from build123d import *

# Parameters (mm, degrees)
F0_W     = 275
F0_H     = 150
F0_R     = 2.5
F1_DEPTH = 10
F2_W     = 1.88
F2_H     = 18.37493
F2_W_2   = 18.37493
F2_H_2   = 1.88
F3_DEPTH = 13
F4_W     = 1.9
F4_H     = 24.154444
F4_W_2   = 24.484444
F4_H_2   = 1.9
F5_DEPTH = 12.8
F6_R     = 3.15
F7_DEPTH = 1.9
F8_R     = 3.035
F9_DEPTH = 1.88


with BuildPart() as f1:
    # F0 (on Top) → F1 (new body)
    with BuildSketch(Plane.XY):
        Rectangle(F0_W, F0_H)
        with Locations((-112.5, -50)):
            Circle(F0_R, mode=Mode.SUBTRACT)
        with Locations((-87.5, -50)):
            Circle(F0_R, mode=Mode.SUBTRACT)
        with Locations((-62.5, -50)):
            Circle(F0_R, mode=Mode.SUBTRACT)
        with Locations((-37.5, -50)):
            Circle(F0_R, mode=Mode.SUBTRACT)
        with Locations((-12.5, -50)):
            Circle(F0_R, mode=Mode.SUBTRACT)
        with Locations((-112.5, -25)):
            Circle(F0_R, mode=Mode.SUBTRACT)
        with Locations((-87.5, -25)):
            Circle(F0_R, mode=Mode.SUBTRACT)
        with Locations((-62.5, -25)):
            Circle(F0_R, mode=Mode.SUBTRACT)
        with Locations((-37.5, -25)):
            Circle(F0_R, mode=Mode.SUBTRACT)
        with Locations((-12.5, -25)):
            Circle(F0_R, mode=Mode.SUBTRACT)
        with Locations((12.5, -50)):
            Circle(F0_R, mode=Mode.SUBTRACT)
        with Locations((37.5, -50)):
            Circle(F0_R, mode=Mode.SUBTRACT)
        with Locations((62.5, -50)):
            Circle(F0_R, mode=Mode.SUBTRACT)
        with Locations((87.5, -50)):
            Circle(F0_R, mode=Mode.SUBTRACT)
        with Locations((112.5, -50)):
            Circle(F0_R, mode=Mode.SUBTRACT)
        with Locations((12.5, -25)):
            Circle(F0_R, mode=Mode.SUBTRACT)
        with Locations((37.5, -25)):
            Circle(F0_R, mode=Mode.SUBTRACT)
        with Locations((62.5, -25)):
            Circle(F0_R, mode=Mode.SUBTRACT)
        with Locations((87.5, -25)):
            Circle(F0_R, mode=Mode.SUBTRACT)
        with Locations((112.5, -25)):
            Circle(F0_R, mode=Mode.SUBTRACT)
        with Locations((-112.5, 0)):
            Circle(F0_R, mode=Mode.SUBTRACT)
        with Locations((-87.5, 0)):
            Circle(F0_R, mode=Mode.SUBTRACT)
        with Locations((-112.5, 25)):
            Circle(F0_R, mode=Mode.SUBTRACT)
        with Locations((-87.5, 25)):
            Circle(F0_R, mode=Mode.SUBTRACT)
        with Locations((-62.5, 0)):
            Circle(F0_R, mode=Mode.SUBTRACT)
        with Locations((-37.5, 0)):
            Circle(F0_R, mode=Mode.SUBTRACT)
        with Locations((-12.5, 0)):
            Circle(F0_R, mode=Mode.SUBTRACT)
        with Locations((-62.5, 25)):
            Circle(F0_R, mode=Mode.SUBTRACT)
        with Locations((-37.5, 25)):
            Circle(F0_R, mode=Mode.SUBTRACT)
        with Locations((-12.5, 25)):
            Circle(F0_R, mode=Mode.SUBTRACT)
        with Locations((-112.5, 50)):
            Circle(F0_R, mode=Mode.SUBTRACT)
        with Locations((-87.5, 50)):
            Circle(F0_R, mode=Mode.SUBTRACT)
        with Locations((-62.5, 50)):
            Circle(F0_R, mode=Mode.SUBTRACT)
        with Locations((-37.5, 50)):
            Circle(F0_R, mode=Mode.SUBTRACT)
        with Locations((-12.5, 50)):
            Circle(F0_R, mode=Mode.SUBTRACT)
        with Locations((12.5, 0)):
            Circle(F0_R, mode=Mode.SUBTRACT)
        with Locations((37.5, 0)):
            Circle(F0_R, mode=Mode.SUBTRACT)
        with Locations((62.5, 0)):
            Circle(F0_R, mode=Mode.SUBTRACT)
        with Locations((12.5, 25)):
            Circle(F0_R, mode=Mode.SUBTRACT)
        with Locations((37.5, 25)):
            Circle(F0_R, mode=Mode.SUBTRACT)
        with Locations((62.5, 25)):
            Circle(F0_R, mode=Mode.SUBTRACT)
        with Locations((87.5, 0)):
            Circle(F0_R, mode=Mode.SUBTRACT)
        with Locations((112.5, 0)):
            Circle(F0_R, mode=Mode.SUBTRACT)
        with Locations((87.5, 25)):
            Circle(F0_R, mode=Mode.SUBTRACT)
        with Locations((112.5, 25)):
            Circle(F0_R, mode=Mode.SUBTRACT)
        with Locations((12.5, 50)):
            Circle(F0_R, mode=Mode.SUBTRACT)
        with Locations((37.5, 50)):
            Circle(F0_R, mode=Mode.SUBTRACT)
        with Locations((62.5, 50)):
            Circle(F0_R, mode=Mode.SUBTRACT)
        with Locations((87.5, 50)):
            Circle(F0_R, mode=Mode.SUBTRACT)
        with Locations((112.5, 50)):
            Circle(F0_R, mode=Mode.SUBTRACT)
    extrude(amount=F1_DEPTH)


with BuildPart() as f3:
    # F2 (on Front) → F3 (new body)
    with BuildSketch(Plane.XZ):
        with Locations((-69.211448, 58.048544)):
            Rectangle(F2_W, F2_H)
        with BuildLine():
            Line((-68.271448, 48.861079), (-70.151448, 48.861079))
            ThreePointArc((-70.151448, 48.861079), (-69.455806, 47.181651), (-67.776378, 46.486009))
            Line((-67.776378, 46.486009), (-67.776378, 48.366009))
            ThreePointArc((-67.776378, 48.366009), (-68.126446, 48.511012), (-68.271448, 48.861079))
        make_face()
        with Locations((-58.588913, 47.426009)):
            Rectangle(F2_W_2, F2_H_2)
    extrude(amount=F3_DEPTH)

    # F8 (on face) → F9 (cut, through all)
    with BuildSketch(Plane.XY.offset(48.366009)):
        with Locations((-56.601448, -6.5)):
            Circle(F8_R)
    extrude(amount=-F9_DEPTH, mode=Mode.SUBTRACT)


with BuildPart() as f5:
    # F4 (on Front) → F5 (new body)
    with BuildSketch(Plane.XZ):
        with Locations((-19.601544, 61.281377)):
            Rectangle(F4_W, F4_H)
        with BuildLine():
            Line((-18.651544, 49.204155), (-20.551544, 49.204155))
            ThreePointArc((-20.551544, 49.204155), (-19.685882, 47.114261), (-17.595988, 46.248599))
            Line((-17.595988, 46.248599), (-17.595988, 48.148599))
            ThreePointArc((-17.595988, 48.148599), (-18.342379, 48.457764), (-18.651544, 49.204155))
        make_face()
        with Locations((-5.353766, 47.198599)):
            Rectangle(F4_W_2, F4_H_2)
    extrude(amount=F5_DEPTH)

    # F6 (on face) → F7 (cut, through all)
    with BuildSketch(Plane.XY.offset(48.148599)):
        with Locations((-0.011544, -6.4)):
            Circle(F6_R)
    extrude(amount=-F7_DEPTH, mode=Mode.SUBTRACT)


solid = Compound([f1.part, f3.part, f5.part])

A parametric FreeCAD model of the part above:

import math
import FreeCAD as App
import Part
import Sketcher
from FreeCAD import Vector

doc = App.newDocument("Part")
params = doc.addObject("Spreadsheet::Sheet", "Params")
for row, (alias, value) in enumerate([
    ("sketch1_diameter", "5 mm"),
    ("sketch1_width", "275 mm"),
    ("sketch1_height", "150 mm"),
    ("pad1_length", "10 mm"),
    ("sketch2_width", "1.88 mm"),
    ("pad2_length", "13 mm"),
    ("sketch3_diameter", "6.07 mm"),
    ("sketch4_width", "1.9 mm"),
    ("pad3_length", "12.8 mm"),
    ("sketch5_diameter", "6.3 mm"),
], start=1):
    params.set(f"A{row}", alias)
    params.set(f"B{row}", "=" + value)
    params.setAlias(f"B{row}", alias)

body = doc.addObject("PartDesign::Body", "Body")

sketch1 = doc.addObject("Sketcher::SketchObject", "Sketch")
body.addObject(sketch1)
sketch1.AttachmentSupport = (doc.XY_Plane, [""])
sketch1.MapMode = "FlatFace"
sketch1.addGeometry([
    Part.LineSegment(Vector(-137.5, 75, 0), Vector(-137.5, -75, 0)),
    Part.LineSegment(Vector(-137.5, -75, 0), Vector(137.5, -75, 0)),
    Part.LineSegment(Vector(137.5, -75, 0), Vector(137.5, 75, 0)),
    Part.LineSegment(Vector(137.5, 75, 0), Vector(-137.5, 75, 0)),
    Part.Circle(Vector(-112.5, -50, 0), Vector(0, 0, 1), 2.5),
    Part.Circle(Vector(-87.5, -50, 0), Vector(0, 0, 1), 2.5),
    Part.Circle(Vector(-62.5, -50, 0), Vector(0, 0, 1), 2.5),
    Part.Circle(Vector(-37.5, -50, 0), Vector(0, 0, 1), 2.5),
    Part.Circle(Vector(-12.5, -50, 0), Vector(0, 0, 1), 2.5),
    Part.Circle(Vector(-112.5, -25, 0), Vector(0, 0, 1), 2.5),
    Part.Circle(Vector(-87.5, -25, 0), Vector(0, 0, 1), 2.5),
    Part.Circle(Vector(-62.5, -25, 0), Vector(0, 0, 1), 2.5),
    Part.Circle(Vector(-37.5, -25, 0), Vector(0, 0, 1), 2.5),
    Part.Circle(Vector(-12.5, -25, 0), Vector(0, 0, 1), 2.5),
    Part.Circle(Vector(12.5, -50, 0), Vector(0, 0, 1), 2.5),
    Part.Circle(Vector(37.5, -50, 0), Vector(0, 0, 1), 2.5),
    Part.Circle(Vector(62.5, -50, 0), Vector(0, 0, 1), 2.5),
    Part.Circle(Vector(87.5, -50, 0), Vector(0, 0, 1), 2.5),
    Part.Circle(Vector(112.5, -50, 0), Vector(0, 0, 1), 2.5),
    Part.Circle(Vector(12.5, -25, 0), Vector(0, 0, 1), 2.5),
    Part.Circle(Vector(37.5, -25, 0), Vector(0, 0, 1), 2.5),
    Part.Circle(Vector(62.5, -25, 0), Vector(0, 0, 1), 2.5),
    Part.Circle(Vector(87.5, -25, 0), Vector(0, 0, 1), 2.5),
    Part.Circle(Vector(112.5, -25, 0), Vector(0, 0, 1), 2.5),
    Part.Circle(Vector(-112.5, 0, 0), Vector(0, 0, 1), 2.5),
    Part.Circle(Vector(-87.5, 0, 0), Vector(0, 0, 1), 2.5),
    Part.Circle(Vector(-62.5, 0, 0), Vector(0, 0, 1), 2.5),
    Part.Circle(Vector(-112.5, 25, 0), Vector(0, 0, 1), 2.5),
    Part.Circle(Vector(-87.5, 25, 0), Vector(0, 0, 1), 2.5),
    Part.Circle(Vector(-62.5, 25, 0), Vector(0, 0, 1), 2.5),
    Part.Circle(Vector(-37.5, 0, 0), Vector(0, 0, 1), 2.5),
    Part.Circle(Vector(-12.5, 0, 0), Vector(0, 0, 1), 2.5),
    Part.Circle(Vector(-37.5, 25, 0), Vector(0, 0, 1), 2.5),
    Part.Circle(Vector(-12.5, 25, 0), Vector(0, 0, 1), 2.5),
    Part.Circle(Vector(-112.5, 50, 0), Vector(0, 0, 1), 2.5),
    Part.Circle(Vector(-87.5, 50, 0), Vector(0, 0, 1), 2.5),
    Part.Circle(Vector(-62.5, 50, 0), Vector(0, 0, 1), 2.5),
    Part.Circle(Vector(-37.5, 50, 0), Vector(0, 0, 1), 2.5),
    Part.Circle(Vector(-12.5, 50, 0), Vector(0, 0, 1), 2.5),
    Part.Circle(Vector(12.5, 0, 0), Vector(0, 0, 1), 2.5),
    Part.Circle(Vector(37.5, 0, 0), Vector(0, 0, 1), 2.5),
    Part.Circle(Vector(12.5, 25, 0), Vector(0, 0, 1), 2.5),
    Part.Circle(Vector(37.5, 25, 0), Vector(0, 0, 1), 2.5),
    Part.Circle(Vector(62.5, 0, 0), Vector(0, 0, 1), 2.5),
    Part.Circle(Vector(87.5, 0, 0), Vector(0, 0, 1), 2.5),
    Part.Circle(Vector(112.5, 0, 0), Vector(0, 0, 1), 2.5),
    Part.Circle(Vector(62.5, 25, 0), Vector(0, 0, 1), 2.5),
    Part.Circle(Vector(87.5, 25, 0), Vector(0, 0, 1), 2.5),
    Part.Circle(Vector(112.5, 25, 0), Vector(0, 0, 1), 2.5),
    Part.Circle(Vector(12.5, 50, 0), Vector(0, 0, 1), 2.5),
    Part.Circle(Vector(37.5, 50, 0), Vector(0, 0, 1), 2.5),
    Part.Circle(Vector(62.5, 50, 0), Vector(0, 0, 1), 2.5),
    Part.Circle(Vector(87.5, 50, 0), Vector(0, 0, 1), 2.5),
    Part.Circle(Vector(112.5, 50, 0), Vector(0, 0, 1), 2.5),
], False)
sketch1.addConstraint([
    Sketcher.Constraint("Coincident", 0, 2, 1, 1),
    Sketcher.Constraint("Coincident", 1, 2, 2, 1),
    Sketcher.Constraint("Coincident", 2, 2, 3, 1),
    Sketcher.Constraint("Coincident", 3, 2, 0, 1),
    Sketcher.Constraint("Vertical", 0),
    Sketcher.Constraint("Horizontal", 1),
    Sketcher.Constraint("Vertical", 2),
    Sketcher.Constraint("Horizontal", 3),
    Sketcher.Constraint("Equal", 4, 5),
    Sketcher.Constraint("Equal", 5, 6),
    Sketcher.Constraint("Equal", 6, 7),
    Sketcher.Constraint("Equal", 7, 8),
    Sketcher.Constraint("Equal", 8, 9),
    Sketcher.Constraint("Equal", 9, 10),
    Sketcher.Constraint("Equal", 10, 11),
    Sketcher.Constraint("Equal", 11, 12),
    Sketcher.Constraint("Equal", 12, 13),
    Sketcher.Constraint("Equal", 13, 14),
    Sketcher.Constraint("Equal", 14, 15),
    Sketcher.Constraint("Equal", 15, 16),
    Sketcher.Constraint("Equal", 16, 17),
    Sketcher.Constraint("Equal", 17, 18),
    Sketcher.Constraint("Equal", 18, 19),
    Sketcher.Constraint("Equal", 19, 20),
    Sketcher.Constraint("Equal", 20, 21),
    Sketcher.Constraint("Equal", 21, 22),
    Sketcher.Constraint("Equal", 22, 23),
    Sketcher.Constraint("Equal", 23, 24),
    Sketcher.Constraint("Equal", 24, 25),
    Sketcher.Constraint("Equal", 25, 26),
    Sketcher.Constraint("Equal", 26, 27),
    Sketcher.Constraint("Equal", 27, 28),
    Sketcher.Constraint("Equal", 28, 29),
    Sketcher.Constraint("Equal", 29, 30),
    Sketcher.Constraint("Equal", 30, 31),
    Sketcher.Constraint("Equal", 31, 32),
    Sketcher.Constraint("Equal", 32, 33),
    Sketcher.Constraint("Equal", 33, 34),
    Sketcher.Constraint("Equal", 34, 35),
    Sketcher.Constraint("Equal", 35, 36),
    Sketcher.Constraint("Equal", 36, 37),
    Sketcher.Constraint("Equal", 37, 38),
    Sketcher.Constraint("Equal", 38, 39),
    Sketcher.Constraint("Equal", 39, 40),
    Sketcher.Constraint("Equal", 40, 41),
    Sketcher.Constraint("Equal", 41, 42),
    Sketcher.Constraint("Equal", 42, 43),
    Sketcher.Constraint("Equal", 43, 44),
    Sketcher.Constraint("Equal", 44, 45),
    Sketcher.Constraint("Equal", 45, 46),
    Sketcher.Constraint("Equal", 46, 47),
    Sketcher.Constraint("Equal", 47, 48),
    Sketcher.Constraint("Equal", 48, 49),
    Sketcher.Constraint("Equal", 49, 50),
    Sketcher.Constraint("Equal", 50, 51),
    Sketcher.Constraint("Equal", 51, 52),
    Sketcher.Constraint("Equal", 52, 53),
    Sketcher.Constraint("Symmetric", 23, 3, 27, 3, -1, 1),
    Sketcher.Constraint("Symmetric", 22, 3, 28, 3, -1, 1),
    Sketcher.Constraint("Symmetric", 21, 3, 29, 3, -1, 1),
    Sketcher.Constraint("Symmetric", 20, 3, 32, 3, -1, 1),
    Sketcher.Constraint("Symmetric", 19, 3, 33, 3, -1, 1),
    Sketcher.Constraint("Symmetric", 18, 3, 34, 3, -1, 1),
    Sketcher.Constraint("Symmetric", 17, 3, 35, 3, -1, 1),
    Sketcher.Constraint("Symmetric", 16, 3, 36, 3, -1, 1),
    Sketcher.Constraint("Symmetric", 15, 3, 37, 3, -1, 1),
    Sketcher.Constraint("Symmetric", 14, 3, 38, 3, -1, 1),
    Sketcher.Constraint("Symmetric", 31, 3, 39, 3, -1, 1),
    Sketcher.Constraint("Symmetric", 30, 3, 40, 3, -1, 1),
    Sketcher.Constraint("Symmetric", 13, 3, 41, 3, -1, 1),
    Sketcher.Constraint("Symmetric", 12, 3, 42, 3, -1, 1),
    Sketcher.Constraint("Symmetric", 26, 3, 43, 3, -1, 1),
    Sketcher.Constraint("Symmetric", 25, 3, 44, 3, -1, 1),
    Sketcher.Constraint("Symmetric", 24, 3, 45, 3, -1, 1),
    Sketcher.Constraint("Symmetric", 11, 3, 46, 3, -1, 1),
    Sketcher.Constraint("Symmetric", 10, 3, 47, 3, -1, 1),
    Sketcher.Constraint("Symmetric", 9, 3, 48, 3, -1, 1),
    Sketcher.Constraint("Symmetric", 8, 3, 49, 3, -1, 1),
    Sketcher.Constraint("Symmetric", 7, 3, 50, 3, -1, 1),
    Sketcher.Constraint("Symmetric", 6, 3, 51, 3, -1, 1),
    Sketcher.Constraint("Symmetric", 5, 3, 52, 3, -1, 1),
    Sketcher.Constraint("Symmetric", 4, 3, 53, 3, -1, 1),
    Sketcher.Constraint("Symmetric", 0, 2, 2, 2, -1, 1),
    Sketcher.Constraint("Symmetric", 8, 3, 14, 3, -2),
    Sketcher.Constraint("Symmetric", 7, 3, 15, 3, -2),
    Sketcher.Constraint("Symmetric", 6, 3, 16, 3, -2),
    Sketcher.Constraint("Symmetric", 5, 3, 17, 3, -2),
    Sketcher.Constraint("Symmetric", 4, 3, 18, 3, -2),
    Sketcher.Constraint("Symmetric", 13, 3, 19, 3, -2),
    Sketcher.Constraint("Symmetric", 12, 3, 20, 3, -2),
    Sketcher.Constraint("Symmetric", 11, 3, 21, 3, -2),
    Sketcher.Constraint("Symmetric", 10, 3, 22, 3, -2),
    Sketcher.Constraint("Symmetric", 9, 3, 23, 3, -2),
    Sketcher.Constraint("PointOnObject", 24, 3, -1),
    Sketcher.Constraint("PointOnObject", 25, 3, -1),
    Sketcher.Constraint("PointOnObject", 26, 3, -1),
    Sketcher.Constraint("PointOnObject", 30, 3, -1),
    Sketcher.Constraint("PointOnObject", 31, 3, -1),
    Sketcher.Constraint("Horizontal", 4, 3, 5, 3),
    Sketcher.Constraint("Horizontal", 5, 3, 6, 3),
    Sketcher.Constraint("Horizontal", 6, 3, 7, 3),
    Sketcher.Constraint("Horizontal", 7, 3, 8, 3),
    Sketcher.Constraint("Horizontal", 9, 3, 10, 3),
    Sketcher.Constraint("Horizontal", 10, 3, 11, 3),
    Sketcher.Constraint("Horizontal", 11, 3, 12, 3),
    Sketcher.Constraint("Horizontal", 12, 3, 13, 3),
    Sketcher.Constraint("Vertical", 4, 3, 9, 3),
    Sketcher.Constraint("Vertical", 5, 3, 10, 3),
    Sketcher.Constraint("Vertical", 6, 3, 11, 3),
    Sketcher.Constraint("Vertical", 7, 3, 12, 3),
    Sketcher.Constraint("Vertical", 8, 3, 13, 3),
    Sketcher.Constraint("Vertical", 9, 3, 24, 3),
    Sketcher.Constraint("Vertical", 10, 3, 25, 3),
    Sketcher.Constraint("Vertical", 11, 3, 26, 3),
    Sketcher.Constraint("Vertical", 12, 3, 30, 3),
    Sketcher.Constraint("Vertical", 13, 3, 31, 3),
    Sketcher.Constraint("Diameter", 4, 5.0),
    Sketcher.Constraint("DistanceX", 1, 1, 1, 2, 275.0),
    Sketcher.Constraint("DistanceY", 0, 2, 0, 1, 150.0),
    Sketcher.Constraint("DistanceY", 4, 3, -1, 1, 50.0),
    Sketcher.Constraint("DistanceY", 9, 3, -1, 1, 25.0),
    Sketcher.Constraint("DistanceX", 4, 3, 5, 3, 25.0),
    Sketcher.Constraint("DistanceX", 5, 3, 6, 3, 25.0),
    Sketcher.Constraint("DistanceX", 6, 3, 7, 3, 25.0),
    Sketcher.Constraint("DistanceX", 7, 3, 8, 3, 25.0),
    Sketcher.Constraint("DistanceX", 8, 3, 14, 3, 25.0),
])
sketch1.setExpression("Constraints[116]", "Params.sketch1_diameter")
sketch1.setExpression("Constraints[117]", "Params.sketch1_width")
sketch1.setExpression("Constraints[118]", "Params.sketch1_height")
pad1 = doc.addObject("PartDesign::Pad", "Pad")
body.addObject(pad1)
pad1.Profile = sketch1
pad1.setExpression("Length", "Params.pad1_length")
body2 = doc.addObject("PartDesign::Body", "Body001")

sketch2 = doc.addObject("Sketcher::SketchObject", "Sketch001")
body2.addObject(sketch2)
sketch2.AttachmentSupport = (doc.getObject("XZ_Plane001"), [""])
sketch2.MapMode = "FlatFace"
sketch2.addGeometry([
    Part.LineSegment(Vector(-70.151448, 67.236009, 0), Vector(-70.151448, 48.861079, 0)),
    Part.ArcOfCircle(Part.Circle(Vector(-67.776378, 48.861079, 0), Vector(0, 0, 1), 2.37507), math.radians(-179.999992), math.radians(-90.000008)),
    Part.LineSegment(Vector(-67.776378, 46.486009, 0), Vector(-49.401448, 46.486009, 0)),
    Part.LineSegment(Vector(-49.401448, 46.486009, 0), Vector(-49.401448, 48.366009, 0)),
    Part.LineSegment(Vector(-49.401448, 48.366009, 0), Vector(-67.776378, 48.366009, 0)),
    Part.ArcOfCircle(Part.Circle(Vector(-67.776378, 48.861079, 0), Vector(0, 0, 1), 0.49507), math.radians(179.999942), math.radians(270.000058)),
    Part.LineSegment(Vector(-68.271448, 48.861079, 0), Vector(-68.271448, 67.236009, 0)),
    Part.LineSegment(Vector(-68.271448, 67.236009, 0), Vector(-70.151448, 67.236009, 0)),
], False)
sketch2.addConstraint([
    Sketcher.Constraint("Tangent", 0, 2, 1, 1),
    Sketcher.Constraint("Tangent", 1, 2, 2, 1),
    Sketcher.Constraint("Coincident", 2, 2, 3, 1),
    Sketcher.Constraint("Coincident", 3, 2, 4, 1),
    Sketcher.Constraint("Tangent", 4, 2, 5, 2),
    Sketcher.Constraint("Tangent", 5, 1, 6, 1),
    Sketcher.Constraint("Coincident", 6, 2, 7, 1),
    Sketcher.Constraint("Coincident", 7, 2, 0, 1),
    Sketcher.Constraint("Vertical", 0),
    Sketcher.Constraint("Horizontal", 2),
    Sketcher.Constraint("Vertical", 3),
    Sketcher.Constraint("Horizontal", 4),
    Sketcher.Constraint("Vertical", 6),
    Sketcher.Constraint("Horizontal", 7),
    Sketcher.Constraint("Coincident", 5, 3, 1, 3),
    Sketcher.Constraint("Equal", 4, 0),
    Sketcher.Constraint("DistanceX", 7, 2, 7, 1, 1.88),
    Sketcher.Constraint("Radius", 1, 2.37507),
    Sketcher.Constraint("DistanceX", 0, 2, 2, 2, 20.75),
    Sketcher.Constraint("DistanceY", -1, 1, 1, 3, 48.861079),
    Sketcher.Constraint("DistanceX", 5, 3, -1, 1, 67.776378),
])
sketch2.setExpression("Constraints[16]", "Params.sketch2_width")
pad2 = doc.addObject("PartDesign::Pad", "Pad001")
body2.addObject(pad2)
pad2.Profile = sketch2
pad2.setExpression("Length", "Params.pad2_length")

sketch3 = doc.addObject("Sketcher::SketchObject", "Sketch002")
body2.addObject(sketch3)
sketch3.AttachmentSupport = (doc.getObject("XY_Plane001"), [""])
sketch3.MapMode = "FlatFace"
sketch3.AttachmentOffset = App.Placement(Vector(0, 0, 48.366009), App.Rotation())
sketch3.addGeometry(Part.Circle(Vector(-56.601448, -6.5, 0), Vector(0, 0, 1), 3.035), False)
sketch3.addConstraint([
    Sketcher.Constraint("Diameter", 0, 6.07),
    Sketcher.Constraint("DistanceY", 0, 3, -1, 1, 6.5),
    Sketcher.Constraint("DistanceX", 0, 3, -1, 1, 56.601448),
])
sketch3.setExpression("Constraints[0]", "Params.sketch3_diameter")
pocket1 = doc.addObject("PartDesign::Pocket", "Pocket")
body2.addObject(pocket1)
pocket1.Profile = sketch3
pocket1.Type = "ThroughAll"
body3 = doc.addObject("PartDesign::Body", "Body002")

sketch4 = doc.addObject("Sketcher::SketchObject", "Sketch003")
body3.addObject(sketch4)
sketch4.AttachmentSupport = (doc.getObject("XZ_Plane002"), [""])
sketch4.MapMode = "FlatFace"
sketch4.addGeometry([
    Part.LineSegment(Vector(-20.551544, 73.358599, 0), Vector(-20.551544, 49.204155, 0)),
    Part.ArcOfCircle(Part.Circle(Vector(-17.595989, 49.204154, 0), Vector(0, 0, 1), 2.955555), math.radians(179.999979), math.radians(270.000021)),
    Part.LineSegment(Vector(-17.595988, 46.248599, 0), Vector(6.888456, 46.248599, 0)),
    Part.LineSegment(Vector(6.888456, 46.248599, 0), Vector(6.888456, 48.148599, 0)),
    Part.LineSegment(Vector(6.888456, 48.148599, 0), Vector(-17.595988, 48.148599, 0)),
    Part.ArcOfCircle(Part.Circle(Vector(-17.595989, 49.204154, 0), Vector(0, 0, 1), 1.055555), math.radians(179.999964), math.radians(270.000036)),
    Part.LineSegment(Vector(-18.651544, 49.204155, 0), Vector(-18.651544, 73.358599, 0)),
    Part.LineSegment(Vector(-18.651544, 73.358599, 0), Vector(-20.551544, 73.358599, 0)),
], False)
sketch4.addConstraint([
    Sketcher.Constraint("Tangent", 0, 2, 1, 1),
    Sketcher.Constraint("Tangent", 1, 2, 2, 1),
    Sketcher.Constraint("Coincident", 2, 2, 3, 1),
    Sketcher.Constraint("Coincident", 3, 2, 4, 1),
    Sketcher.Constraint("Tangent", 4, 2, 5, 2),
    Sketcher.Constraint("Tangent", 5, 1, 6, 1),
    Sketcher.Constraint("Coincident", 6, 2, 7, 1),
    Sketcher.Constraint("Coincident", 7, 2, 0, 1),
    Sketcher.Constraint("Vertical", 0),
    Sketcher.Constraint("Horizontal", 2),
    Sketcher.Constraint("Vertical", 3),
    Sketcher.Constraint("Horizontal", 4),
    Sketcher.Constraint("Vertical", 6),
    Sketcher.Constraint("Horizontal", 7),
    Sketcher.Constraint("Coincident", 5, 3, 1, 3),
    Sketcher.Constraint("DistanceX", 7, 2, 7, 1, 1.9),
    Sketcher.Constraint("DistanceX", 0, 2, 2, 2, 27.44),
    Sketcher.Constraint("DistanceY", 4, 2, 6, 2, 25.21),
    Sketcher.Constraint("Radius", 1, 2.955555),
    Sketcher.Constraint("DistanceY", -1, 1, 1, 2, 46.248599),
    Sketcher.Constraint("DistanceX", 1, 3, -1, 1, 17.595989),
])
sketch4.setExpression("Constraints[15]", "Params.sketch4_width")
pad3 = doc.addObject("PartDesign::Pad", "Pad002")
body3.addObject(pad3)
pad3.Profile = sketch4
pad3.setExpression("Length", "Params.pad3_length")

sketch5 = doc.addObject("Sketcher::SketchObject", "Sketch004")
body3.addObject(sketch5)
sketch5.AttachmentSupport = (doc.getObject("XY_Plane002"), [""])
sketch5.MapMode = "FlatFace"
sketch5.AttachmentOffset = App.Placement(Vector(0, 0, 48.148599), App.Rotation())
sketch5.addGeometry(Part.Circle(Vector(-0.011544, -6.4, 0), Vector(0, 0, 1), 3.15), False)
sketch5.addConstraint([
    Sketcher.Constraint("Diameter", 0, 6.3),
    Sketcher.Constraint("DistanceY", 0, 3, -1, 1, 6.4),
    Sketcher.Constraint("DistanceX", 0, 3, -1, 1, 0.011544),
])
sketch5.setExpression("Constraints[0]", "Params.sketch5_diameter")
pocket2 = doc.addObject("PartDesign::Pocket", "Pocket001")
body3.addObject(pocket2)
pocket2.Profile = sketch5
pocket2.Type = "ThroughAll"

doc.recompute()
